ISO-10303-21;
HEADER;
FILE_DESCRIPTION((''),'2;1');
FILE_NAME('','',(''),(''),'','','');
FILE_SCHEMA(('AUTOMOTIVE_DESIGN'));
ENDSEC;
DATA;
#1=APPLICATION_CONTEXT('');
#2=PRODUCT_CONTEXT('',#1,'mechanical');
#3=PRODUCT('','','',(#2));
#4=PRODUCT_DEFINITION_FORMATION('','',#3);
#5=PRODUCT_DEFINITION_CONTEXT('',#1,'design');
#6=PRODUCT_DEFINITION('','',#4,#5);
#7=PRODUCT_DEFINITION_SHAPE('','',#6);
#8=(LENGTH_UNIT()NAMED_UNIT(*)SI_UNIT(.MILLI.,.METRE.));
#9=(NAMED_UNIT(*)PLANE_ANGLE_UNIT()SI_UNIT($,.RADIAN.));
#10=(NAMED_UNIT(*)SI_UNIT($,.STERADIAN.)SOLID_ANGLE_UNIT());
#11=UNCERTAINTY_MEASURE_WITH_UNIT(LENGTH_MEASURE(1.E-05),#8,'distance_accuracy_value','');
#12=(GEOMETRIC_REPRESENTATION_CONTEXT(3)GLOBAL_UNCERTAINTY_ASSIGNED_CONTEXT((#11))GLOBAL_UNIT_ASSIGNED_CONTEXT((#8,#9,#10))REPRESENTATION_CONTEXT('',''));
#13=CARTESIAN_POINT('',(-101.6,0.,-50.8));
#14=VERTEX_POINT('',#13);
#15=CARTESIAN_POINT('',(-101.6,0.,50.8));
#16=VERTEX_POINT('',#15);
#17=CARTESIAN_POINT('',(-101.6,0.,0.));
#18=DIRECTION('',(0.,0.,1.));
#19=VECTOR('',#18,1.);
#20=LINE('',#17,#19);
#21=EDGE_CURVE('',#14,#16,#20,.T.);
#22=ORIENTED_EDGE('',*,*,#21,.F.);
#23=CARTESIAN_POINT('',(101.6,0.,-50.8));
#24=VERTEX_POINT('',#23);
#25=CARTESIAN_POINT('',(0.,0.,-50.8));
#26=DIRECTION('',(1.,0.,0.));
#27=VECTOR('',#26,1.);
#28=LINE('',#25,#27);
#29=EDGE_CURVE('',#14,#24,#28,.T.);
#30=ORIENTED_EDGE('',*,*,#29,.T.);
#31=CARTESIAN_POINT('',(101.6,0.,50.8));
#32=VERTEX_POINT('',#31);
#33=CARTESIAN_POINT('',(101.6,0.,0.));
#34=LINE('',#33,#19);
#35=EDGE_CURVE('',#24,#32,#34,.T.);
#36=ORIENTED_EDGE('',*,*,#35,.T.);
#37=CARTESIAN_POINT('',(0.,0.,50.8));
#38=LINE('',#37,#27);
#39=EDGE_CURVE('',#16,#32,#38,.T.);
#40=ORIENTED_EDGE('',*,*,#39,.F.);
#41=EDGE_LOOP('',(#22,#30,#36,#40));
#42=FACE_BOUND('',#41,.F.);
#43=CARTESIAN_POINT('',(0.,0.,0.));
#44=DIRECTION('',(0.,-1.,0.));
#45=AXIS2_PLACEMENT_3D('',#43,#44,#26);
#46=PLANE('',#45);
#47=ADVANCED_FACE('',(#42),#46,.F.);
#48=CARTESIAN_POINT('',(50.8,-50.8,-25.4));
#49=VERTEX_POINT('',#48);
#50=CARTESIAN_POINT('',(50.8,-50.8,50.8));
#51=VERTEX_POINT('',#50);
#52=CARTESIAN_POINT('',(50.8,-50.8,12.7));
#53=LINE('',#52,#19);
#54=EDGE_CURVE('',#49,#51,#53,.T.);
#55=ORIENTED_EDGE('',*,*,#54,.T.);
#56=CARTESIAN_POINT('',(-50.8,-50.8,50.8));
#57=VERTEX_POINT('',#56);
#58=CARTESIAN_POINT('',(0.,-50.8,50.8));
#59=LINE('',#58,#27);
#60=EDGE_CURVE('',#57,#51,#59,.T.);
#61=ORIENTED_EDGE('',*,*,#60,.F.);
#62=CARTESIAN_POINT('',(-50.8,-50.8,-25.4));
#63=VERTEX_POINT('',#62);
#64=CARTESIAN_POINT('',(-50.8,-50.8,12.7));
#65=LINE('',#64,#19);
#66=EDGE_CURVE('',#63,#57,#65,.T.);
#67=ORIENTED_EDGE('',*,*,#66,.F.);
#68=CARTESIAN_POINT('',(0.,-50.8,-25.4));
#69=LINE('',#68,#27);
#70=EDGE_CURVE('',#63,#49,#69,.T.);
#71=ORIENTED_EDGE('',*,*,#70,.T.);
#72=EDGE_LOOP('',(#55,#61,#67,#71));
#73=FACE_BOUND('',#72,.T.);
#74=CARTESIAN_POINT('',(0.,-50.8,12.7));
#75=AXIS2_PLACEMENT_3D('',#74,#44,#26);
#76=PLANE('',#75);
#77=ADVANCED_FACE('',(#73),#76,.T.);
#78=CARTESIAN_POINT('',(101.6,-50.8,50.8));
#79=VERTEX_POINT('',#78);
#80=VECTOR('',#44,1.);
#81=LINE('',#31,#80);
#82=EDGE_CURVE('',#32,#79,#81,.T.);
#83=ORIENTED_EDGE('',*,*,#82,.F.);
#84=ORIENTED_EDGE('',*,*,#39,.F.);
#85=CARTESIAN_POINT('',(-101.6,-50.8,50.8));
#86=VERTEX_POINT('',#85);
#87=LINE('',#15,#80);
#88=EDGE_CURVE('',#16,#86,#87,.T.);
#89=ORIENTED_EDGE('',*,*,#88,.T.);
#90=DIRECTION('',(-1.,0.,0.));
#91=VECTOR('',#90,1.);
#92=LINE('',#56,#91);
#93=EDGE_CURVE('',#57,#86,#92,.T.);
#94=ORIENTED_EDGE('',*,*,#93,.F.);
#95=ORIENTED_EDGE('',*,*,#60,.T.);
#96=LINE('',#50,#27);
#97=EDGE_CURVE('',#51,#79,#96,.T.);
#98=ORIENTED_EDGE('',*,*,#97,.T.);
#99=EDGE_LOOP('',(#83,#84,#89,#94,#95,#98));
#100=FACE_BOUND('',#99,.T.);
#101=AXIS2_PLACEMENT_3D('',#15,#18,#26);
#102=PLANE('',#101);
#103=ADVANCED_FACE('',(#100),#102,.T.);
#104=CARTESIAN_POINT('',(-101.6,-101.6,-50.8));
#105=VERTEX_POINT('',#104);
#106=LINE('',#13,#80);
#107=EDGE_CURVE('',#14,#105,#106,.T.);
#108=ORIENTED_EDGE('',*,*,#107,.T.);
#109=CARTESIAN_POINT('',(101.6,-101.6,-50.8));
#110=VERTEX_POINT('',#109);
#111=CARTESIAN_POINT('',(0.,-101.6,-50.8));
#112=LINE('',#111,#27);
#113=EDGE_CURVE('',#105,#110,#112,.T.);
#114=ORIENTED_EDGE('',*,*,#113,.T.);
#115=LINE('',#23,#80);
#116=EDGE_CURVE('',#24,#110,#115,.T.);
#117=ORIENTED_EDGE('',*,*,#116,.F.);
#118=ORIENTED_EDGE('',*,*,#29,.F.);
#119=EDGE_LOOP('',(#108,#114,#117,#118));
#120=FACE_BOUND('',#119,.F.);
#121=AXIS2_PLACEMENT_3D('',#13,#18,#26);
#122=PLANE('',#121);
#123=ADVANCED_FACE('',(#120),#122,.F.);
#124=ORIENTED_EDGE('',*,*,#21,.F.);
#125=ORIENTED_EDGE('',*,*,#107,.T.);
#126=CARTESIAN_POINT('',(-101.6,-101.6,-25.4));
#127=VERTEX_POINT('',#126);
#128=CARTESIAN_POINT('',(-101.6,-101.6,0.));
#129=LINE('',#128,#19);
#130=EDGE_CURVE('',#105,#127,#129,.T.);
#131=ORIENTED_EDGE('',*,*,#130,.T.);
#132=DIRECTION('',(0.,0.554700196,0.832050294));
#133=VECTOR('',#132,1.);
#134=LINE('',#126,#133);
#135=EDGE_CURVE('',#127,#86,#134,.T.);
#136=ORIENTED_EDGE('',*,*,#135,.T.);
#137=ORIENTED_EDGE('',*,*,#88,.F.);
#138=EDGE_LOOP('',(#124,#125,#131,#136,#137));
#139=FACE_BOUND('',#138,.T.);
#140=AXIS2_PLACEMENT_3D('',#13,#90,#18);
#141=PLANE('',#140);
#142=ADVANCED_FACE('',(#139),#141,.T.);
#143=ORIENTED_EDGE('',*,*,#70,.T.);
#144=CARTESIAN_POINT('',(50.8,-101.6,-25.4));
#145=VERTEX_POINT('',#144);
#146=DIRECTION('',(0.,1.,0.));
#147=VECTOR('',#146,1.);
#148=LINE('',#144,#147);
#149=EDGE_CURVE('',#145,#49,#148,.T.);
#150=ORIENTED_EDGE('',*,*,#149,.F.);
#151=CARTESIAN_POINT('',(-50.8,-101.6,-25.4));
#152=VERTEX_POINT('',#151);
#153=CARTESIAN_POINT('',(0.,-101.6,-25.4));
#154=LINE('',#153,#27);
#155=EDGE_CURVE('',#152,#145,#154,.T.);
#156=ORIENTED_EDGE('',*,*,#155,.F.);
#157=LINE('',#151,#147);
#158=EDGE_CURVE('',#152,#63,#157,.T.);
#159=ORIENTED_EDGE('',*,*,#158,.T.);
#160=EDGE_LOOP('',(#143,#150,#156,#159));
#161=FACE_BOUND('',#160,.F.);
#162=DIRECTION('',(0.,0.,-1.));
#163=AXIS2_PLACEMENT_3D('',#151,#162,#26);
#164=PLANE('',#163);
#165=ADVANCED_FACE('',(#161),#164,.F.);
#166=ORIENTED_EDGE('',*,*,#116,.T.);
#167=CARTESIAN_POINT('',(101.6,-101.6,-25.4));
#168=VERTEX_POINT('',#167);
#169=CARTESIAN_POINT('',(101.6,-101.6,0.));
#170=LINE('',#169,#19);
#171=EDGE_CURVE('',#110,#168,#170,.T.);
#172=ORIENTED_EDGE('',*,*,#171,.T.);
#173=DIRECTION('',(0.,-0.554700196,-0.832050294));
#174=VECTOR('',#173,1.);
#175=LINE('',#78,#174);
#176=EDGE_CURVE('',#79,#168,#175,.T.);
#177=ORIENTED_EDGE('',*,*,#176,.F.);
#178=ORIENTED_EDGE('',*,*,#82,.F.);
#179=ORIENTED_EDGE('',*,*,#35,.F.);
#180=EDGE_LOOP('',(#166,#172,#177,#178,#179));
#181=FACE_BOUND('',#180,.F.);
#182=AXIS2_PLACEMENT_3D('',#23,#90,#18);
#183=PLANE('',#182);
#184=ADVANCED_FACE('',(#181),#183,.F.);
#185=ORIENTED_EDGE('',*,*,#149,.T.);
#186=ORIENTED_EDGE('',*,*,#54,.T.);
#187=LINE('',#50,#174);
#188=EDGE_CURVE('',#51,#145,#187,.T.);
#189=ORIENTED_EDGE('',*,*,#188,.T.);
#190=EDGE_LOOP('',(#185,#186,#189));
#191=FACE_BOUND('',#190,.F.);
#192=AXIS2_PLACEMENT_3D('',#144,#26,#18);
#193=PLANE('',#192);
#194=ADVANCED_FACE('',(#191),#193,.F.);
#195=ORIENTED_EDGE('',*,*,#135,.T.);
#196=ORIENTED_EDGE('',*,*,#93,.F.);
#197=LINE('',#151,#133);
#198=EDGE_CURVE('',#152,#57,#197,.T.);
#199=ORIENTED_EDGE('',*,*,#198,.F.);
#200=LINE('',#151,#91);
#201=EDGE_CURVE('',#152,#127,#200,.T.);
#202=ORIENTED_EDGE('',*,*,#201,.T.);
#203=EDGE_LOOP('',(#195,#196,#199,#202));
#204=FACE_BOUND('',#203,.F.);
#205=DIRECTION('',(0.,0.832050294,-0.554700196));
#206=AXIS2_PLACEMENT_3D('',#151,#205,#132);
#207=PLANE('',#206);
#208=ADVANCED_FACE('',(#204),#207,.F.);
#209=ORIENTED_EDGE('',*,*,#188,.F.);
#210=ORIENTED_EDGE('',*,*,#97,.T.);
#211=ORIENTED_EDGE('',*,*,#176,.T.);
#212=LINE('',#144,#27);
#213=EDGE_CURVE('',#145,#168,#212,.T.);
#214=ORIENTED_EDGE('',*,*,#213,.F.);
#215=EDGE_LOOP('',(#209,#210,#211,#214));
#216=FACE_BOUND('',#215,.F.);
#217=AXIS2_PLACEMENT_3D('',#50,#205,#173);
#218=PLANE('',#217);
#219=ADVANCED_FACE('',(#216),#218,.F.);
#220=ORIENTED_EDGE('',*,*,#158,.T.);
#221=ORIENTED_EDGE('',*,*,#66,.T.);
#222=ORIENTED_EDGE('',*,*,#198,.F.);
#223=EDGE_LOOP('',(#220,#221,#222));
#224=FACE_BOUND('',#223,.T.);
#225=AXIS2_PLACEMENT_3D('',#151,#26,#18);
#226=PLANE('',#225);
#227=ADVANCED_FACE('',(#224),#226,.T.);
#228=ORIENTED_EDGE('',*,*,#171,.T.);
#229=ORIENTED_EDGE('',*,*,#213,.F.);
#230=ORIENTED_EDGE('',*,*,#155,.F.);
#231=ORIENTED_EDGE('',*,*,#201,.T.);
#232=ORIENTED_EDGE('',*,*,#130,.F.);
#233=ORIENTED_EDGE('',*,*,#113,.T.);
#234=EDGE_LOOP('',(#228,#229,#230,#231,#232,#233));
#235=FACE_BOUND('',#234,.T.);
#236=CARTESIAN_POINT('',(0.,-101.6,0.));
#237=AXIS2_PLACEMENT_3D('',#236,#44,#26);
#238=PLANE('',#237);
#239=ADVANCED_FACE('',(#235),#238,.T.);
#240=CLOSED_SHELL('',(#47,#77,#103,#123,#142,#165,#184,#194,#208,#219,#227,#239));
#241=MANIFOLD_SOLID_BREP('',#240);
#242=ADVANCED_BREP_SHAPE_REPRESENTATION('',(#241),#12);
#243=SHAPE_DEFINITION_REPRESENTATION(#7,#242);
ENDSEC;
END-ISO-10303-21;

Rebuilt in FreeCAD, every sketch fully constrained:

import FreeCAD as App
import Part
import Sketcher
Q = App.Units.Quantity

doc = App.newDocument("Part")
body = doc.addObject("PartDesign::Body", "Body")

sketch1 = doc.addObject("Sketcher::SketchObject", "Sketch")
body.addObject(sketch1)
sketch1.AttachmentSupport = (doc.XZ_Plane, [""])
sketch1.MapMode = "FlatFace"
sketch1.addGeometry(Part.LineSegment(App.Vector(-102, 51, 0), App.Vector(-102, -51, 0)), False)
sketch1.addGeometry(Part.LineSegment(App.Vector(-102, -51, 0), App.Vector(102, -51, 0)), False)
sketch1.addGeometry(Part.LineSegment(App.Vector(102, -51, 0), App.Vector(102, 51, 0)), False)
sketch1.addGeometry(Part.LineSegment(App.Vector(102, 51, 0), App.Vector(-102, 51, 0)), False)
sketch1.addConstraint(Sketcher.Constraint("Coincident", 0, 2, 1, 1))
sketch1.addConstraint(Sketcher.Constraint("Coincident", 1, 2, 2, 1))
sketch1.addConstraint(Sketcher.Constraint("Coincident", 2, 2, 3, 1))
sketch1.addConstraint(Sketcher.Constraint("Coincident", 3, 2, 0, 1))
sketch1.addConstraint(Sketcher.Constraint("Vertical", 0))
sketch1.addConstraint(Sketcher.Constraint("Horizontal", 1))
sketch1.addConstraint(Sketcher.Constraint("Vertical", 2))
sketch1.addConstraint(Sketcher.Constraint("Horizontal", 3))
sketch1.addConstraint(Sketcher.Constraint("Symmetric", 0, 2, 2, 2, -1, 1))
sketch1.addConstraint(Sketcher.Constraint("DistanceX", 1, 1, 1, 2, Q("8 in")))
sketch1.addConstraint(Sketcher.Constraint("DistanceY", 0, 2, 0, 1, Q("4 in")))
pad1 = doc.addObject("PartDesign::Pad", "Pad")
body.addObject(pad1)
pad1.Profile = sketch1
pad1.Length = Q("4 in")

sketch2 = doc.addObject("Sketcher::SketchObject", "Sketch001")
body.addObject(sketch2)
sketch2.AttachmentSupport = (doc.XZ_Plane, [""])
sketch2.MapMode = "FlatFace"
sketch2.AttachmentOffset = App.Placement(App.Vector(0, 0, 4 * 25.4), App.Rotation())
sketch2.addGeometry(Part.LineSegment(App.Vector(-51, 51, 0), App.Vector(-51, -25, 0)), False)
sketch2.addGeometry(Part.LineSegment(App.Vector(-51, -25, 0), App.Vector(51, -25, 0)), False)
sketch2.addGeometry(Part.LineSegment(App.Vector(51, -25, 0), App.Vector(51, 51, 0)), False)
sketch2.addGeometry(Part.LineSegment(App.Vector(51, 51, 0), App.Vector(-51, 51, 0)), False)
sketch2.addConstraint(Sketcher.Constraint("Coincident", 0, 2, 1, 1))
sketch2.addConstraint(Sketcher.Constraint("Coincident", 1, 2, 2, 1))
sketch2.addConstraint(Sketcher.Constraint("Coincident", 2, 2, 3, 1))
sketch2.addConstraint(Sketcher.Constraint("Coincident", 3, 2, 0, 1))
sketch2.addConstraint(Sketcher.Constraint("Vertical", 0))
sketch2.addConstraint(Sketcher.Constraint("Horizontal", 1))
sketch2.addConstraint(Sketcher.Constraint("Vertical", 2))
sketch2.addConstraint(Sketcher.Constraint("Horizontal", 3))
sketch2.addConstraint(Sketcher.Constraint("DistanceX", 1, 1, 1, 2, Q("4 in")))
sketch2.addConstraint(Sketcher.Constraint("DistanceY", 0, 2, 0, 1, Q("3 in")))
sketch2.addConstraint(Sketcher.Constraint("DistanceX", 0, 2, -1, 1, Q("2 in")))
sketch2.addConstraint(Sketcher.Constraint("DistanceY", 0, 2, -1, 1, Q("1 in")))
pocket1 = doc.addObject("PartDesign::Pocket", "Pocket")
body.addObject(pocket1)
pocket1.Profile = sketch2
pocket1.Length = Q("2 in")

sketch3 = doc.addObject("Sketcher::SketchObject", "Sketch002")
body.addObject(sketch3)
sketch3.AttachmentSupport = (doc.YZ_Plane, [""])
sketch3.MapMode = "FlatFace"
sketch3.AttachmentOffset = App.Placement(App.Vector(0, 0, -2 * 25.4), App.Rotation())
sketch3.addGeometry(Part.LineSegment(App.Vector(-102, -25, 0), App.Vector(-51, 51, 0)), False)
sketch3.addGeometry(Part.LineSegment(App.Vector(-51, 51, 0), App.Vector(-102, 51, 0)), False)
sketch3.addGeometry(Part.LineSegment(App.Vector(-102, 51, 0), App.Vector(-102, -25, 0)), False)
sketch3.addConstraint(Sketcher.Constraint("Coincident", 0, 2, 1, 1))
sketch3.addConstraint(Sketcher.Constraint("Coincident", 1, 2, 2, 1))
sketch3.addConstraint(Sketcher.Constraint("Coincident", 2, 2, 0, 1))
sketch3.addConstraint(Sketcher.Constraint("Horizontal", 1))
sketch3.addConstraint(Sketcher.Constraint("Vertical", 2))
sketch3.addConstraint(Sketcher.Constraint("DistanceX", 1, 2, 1, 1, Q("2 in")))
sketch3.addConstraint(Sketcher.Constraint("DistanceY", 2, 2, 2, 1, Q("3 in")))
sketch3.addConstraint(Sketcher.Constraint("DistanceX", 0, 2, -1, 1, Q("2 in")))
sketch3.addConstraint(Sketcher.Constraint("DistanceY", -1, 1, 0, 2, Q("2 in")))
pocket2 = doc.addObject("PartDesign::Pocket", "Pocket001")
body.addObject(pocket2)
pocket2.Profile = sketch3
pocket2.Length = Q("2 in")

sketch4 = doc.addObject("Sketcher::SketchObject", "Sketch003")
body.addObject(sketch4)
sketch4.AttachmentSupport = (doc.YZ_Plane, [""])
sketch4.MapMode = "FlatFace"
sketch4.AttachmentOffset = App.Placement(App.Vector(0, 0, 2 * 25.4), App.Rotation())
sketch4.addGeometry(Part.LineSegment(App.Vector(-102, 51, 0), App.Vector(-51, 51, 0)), False)
sketch4.addGeometry(Part.LineSegment(App.Vector(-51, 51, 0), App.Vector(-102, -25, 0)), False)
sketch4.addGeometry(Part.LineSegment(App.Vector(-102, -25, 0), App.Vector(-102, 51, 0)), False)
sketch4.addConstraint(Sketcher.Constraint("Coincident", 0, 2, 1, 1))
sketch4.addConstraint(Sketcher.Constraint("Coincident", 1, 2, 2, 1))
sketch4.addConstraint(Sketcher.Constraint("Coincident", 2, 2, 0, 1))
sketch4.addConstraint(Sketcher.Constraint("Horizontal", 0))
sketch4.addConstraint(Sketcher.Constraint("Vertical", 2))
sketch4.addConstraint(Sketcher.Constraint("DistanceX", 0, 1, 0, 2, Q("2 in")))
sketch4.addConstraint(Sketcher.Constraint("DistanceY", 2, 1, 2, 2, Q("3 in")))
sketch4.addConstraint(Sketcher.Constraint("DistanceX", 0, 2, -1, 1, Q("2 in")))
sketch4.addConstraint(Sketcher.Constraint("DistanceY", -1, 1, 0, 2, Q("2 in")))
pocket3 = doc.addObject("PartDesign::Pocket", "Pocket002")
body.addObject(pocket3)
pocket3.Profile = sketch4
pocket3.Length = Q("2 in")
pocket3.Reversed = True

doc.recompute()
